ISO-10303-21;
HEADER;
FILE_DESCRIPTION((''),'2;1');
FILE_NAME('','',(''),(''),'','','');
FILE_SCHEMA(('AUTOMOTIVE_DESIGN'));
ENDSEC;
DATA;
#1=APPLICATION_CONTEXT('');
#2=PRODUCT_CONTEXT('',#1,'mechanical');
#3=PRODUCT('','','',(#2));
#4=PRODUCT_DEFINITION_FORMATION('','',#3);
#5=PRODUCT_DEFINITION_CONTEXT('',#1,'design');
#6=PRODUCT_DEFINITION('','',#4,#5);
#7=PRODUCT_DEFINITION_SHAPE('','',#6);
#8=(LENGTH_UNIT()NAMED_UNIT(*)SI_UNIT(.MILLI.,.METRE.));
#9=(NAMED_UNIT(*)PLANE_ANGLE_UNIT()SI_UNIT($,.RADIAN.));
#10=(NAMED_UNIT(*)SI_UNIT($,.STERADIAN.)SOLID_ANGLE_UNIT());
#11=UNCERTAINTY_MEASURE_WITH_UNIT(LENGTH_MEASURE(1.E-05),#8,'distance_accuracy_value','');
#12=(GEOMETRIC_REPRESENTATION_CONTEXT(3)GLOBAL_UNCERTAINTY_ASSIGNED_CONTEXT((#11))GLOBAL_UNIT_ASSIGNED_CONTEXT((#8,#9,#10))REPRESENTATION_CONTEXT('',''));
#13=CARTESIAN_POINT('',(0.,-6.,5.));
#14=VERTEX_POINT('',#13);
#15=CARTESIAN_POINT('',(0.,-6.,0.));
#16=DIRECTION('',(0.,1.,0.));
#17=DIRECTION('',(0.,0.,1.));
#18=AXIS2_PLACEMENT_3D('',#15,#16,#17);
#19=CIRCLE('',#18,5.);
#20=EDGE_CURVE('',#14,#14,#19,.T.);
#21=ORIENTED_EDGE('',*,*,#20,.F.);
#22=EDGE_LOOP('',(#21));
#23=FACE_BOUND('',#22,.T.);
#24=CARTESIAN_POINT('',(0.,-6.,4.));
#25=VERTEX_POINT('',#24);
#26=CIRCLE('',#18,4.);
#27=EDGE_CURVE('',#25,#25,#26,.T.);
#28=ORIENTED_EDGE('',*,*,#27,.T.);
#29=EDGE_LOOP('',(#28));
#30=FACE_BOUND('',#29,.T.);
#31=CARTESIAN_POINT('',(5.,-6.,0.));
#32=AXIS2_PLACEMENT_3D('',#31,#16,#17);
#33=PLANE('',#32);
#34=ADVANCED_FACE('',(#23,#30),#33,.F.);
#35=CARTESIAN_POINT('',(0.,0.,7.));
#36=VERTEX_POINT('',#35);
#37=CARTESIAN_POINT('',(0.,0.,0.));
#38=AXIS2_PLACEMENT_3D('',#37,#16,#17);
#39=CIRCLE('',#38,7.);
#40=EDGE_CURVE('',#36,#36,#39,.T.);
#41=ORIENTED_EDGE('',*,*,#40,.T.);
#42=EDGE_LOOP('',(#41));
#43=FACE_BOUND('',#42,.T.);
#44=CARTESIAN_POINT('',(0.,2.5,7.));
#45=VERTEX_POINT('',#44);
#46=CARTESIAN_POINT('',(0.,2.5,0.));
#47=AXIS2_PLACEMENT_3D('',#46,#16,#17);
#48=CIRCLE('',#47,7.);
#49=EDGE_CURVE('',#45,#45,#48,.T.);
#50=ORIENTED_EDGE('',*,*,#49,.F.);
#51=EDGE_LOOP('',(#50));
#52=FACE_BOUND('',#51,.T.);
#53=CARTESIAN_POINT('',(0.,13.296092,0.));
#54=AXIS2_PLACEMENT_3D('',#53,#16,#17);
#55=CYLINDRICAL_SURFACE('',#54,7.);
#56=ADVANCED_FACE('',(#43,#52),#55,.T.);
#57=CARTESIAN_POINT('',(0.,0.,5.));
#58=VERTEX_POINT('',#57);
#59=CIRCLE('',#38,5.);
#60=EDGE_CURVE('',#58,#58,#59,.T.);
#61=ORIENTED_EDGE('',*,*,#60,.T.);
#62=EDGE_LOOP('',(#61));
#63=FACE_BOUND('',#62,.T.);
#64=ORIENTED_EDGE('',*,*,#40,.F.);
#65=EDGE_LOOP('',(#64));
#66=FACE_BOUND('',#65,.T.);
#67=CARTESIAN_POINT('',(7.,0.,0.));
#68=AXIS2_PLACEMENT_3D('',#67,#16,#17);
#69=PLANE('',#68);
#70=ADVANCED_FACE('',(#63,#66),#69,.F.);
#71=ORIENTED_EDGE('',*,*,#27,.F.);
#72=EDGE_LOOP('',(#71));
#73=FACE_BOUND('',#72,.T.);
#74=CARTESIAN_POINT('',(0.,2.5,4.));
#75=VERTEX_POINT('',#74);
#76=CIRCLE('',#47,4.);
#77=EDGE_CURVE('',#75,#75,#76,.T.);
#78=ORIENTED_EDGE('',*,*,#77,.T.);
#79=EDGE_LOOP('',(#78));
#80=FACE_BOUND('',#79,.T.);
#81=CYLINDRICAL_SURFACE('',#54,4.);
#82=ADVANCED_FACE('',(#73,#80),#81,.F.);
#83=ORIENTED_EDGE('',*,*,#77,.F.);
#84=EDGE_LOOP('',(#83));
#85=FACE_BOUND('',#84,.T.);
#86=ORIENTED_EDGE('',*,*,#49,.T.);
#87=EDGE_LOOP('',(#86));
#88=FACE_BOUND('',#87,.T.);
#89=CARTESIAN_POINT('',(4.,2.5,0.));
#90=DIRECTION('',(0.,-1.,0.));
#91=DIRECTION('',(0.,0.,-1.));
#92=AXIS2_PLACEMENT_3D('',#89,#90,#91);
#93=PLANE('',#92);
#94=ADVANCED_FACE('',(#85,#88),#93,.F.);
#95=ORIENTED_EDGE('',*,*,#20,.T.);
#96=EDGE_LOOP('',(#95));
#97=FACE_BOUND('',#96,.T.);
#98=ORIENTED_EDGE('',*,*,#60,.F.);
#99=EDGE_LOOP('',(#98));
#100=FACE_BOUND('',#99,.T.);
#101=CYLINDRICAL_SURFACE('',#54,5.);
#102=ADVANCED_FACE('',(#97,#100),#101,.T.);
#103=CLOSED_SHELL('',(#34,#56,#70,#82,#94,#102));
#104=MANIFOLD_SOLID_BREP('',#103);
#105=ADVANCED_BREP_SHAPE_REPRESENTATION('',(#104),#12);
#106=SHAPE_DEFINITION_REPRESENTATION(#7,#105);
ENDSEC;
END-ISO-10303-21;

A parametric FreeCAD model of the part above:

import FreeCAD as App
import Part
import Sketcher

V = App.Vector


def add_polygon(sketch, points):
    """Adds a closed chain of lines whose ends are joined by coincident constraints."""
    first, n = sketch.GeometryCount, len(points)
    for a, b in zip(points, points[1:] + points[:1]):
        sketch.addGeometry(Part.LineSegment(App.Vector(*a, 0), App.Vector(*b, 0)), False)
    for i in range(n):
        sketch.addConstraint(Sketcher.Constraint("Coincident", first + i, 2, first + (i + 1) % n, 1))

doc = App.newDocument("Part")
params = doc.addObject("Spreadsheet::Sheet", "Params")
for row, (alias, value) in enumerate([
    ("sketch1_width", "3 mm"),
    ("sketch1_width2", "1 mm"),
    ("sketch1_height", "6 mm"),
    ("sketch1_height2", "8.5 mm"),
    ("revolution_angle", "360 deg"),
], start=1):
    params.set(f"A{row}", alias)
    params.set(f"B{row}", "=" + value)
    params.setAlias(f"B{row}", alias)

body = doc.addObject("PartDesign::Body", "Body")

# Sketch on XY plane
sketch1 = body.newObject("Sketcher::SketchObject", "Sketch")
sketch1.AttachmentSupport = (doc.getObject("XY_Plane"), [""])
sketch1.MapMode = "FlatFace"
add_polygon(sketch1, [(7, 2.5), (4, 2.5), (4, -6), (5, -6), (5, 0), (7, 0)])  # lines 0-5
sketch1.addConstraint(Sketcher.Constraint("Horizontal", 0))
sketch1.addConstraint(Sketcher.Constraint("Vertical", 1))
sketch1.addConstraint(Sketcher.Constraint("Horizontal", 2))
sketch1.addConstraint(Sketcher.Constraint("Vertical", 3))
sketch1.addConstraint(Sketcher.Constraint("Horizontal", 4))
sketch1.addConstraint(Sketcher.Constraint("Vertical", 5))
sketch1.addConstraint(Sketcher.Constraint("PointOnObject", 3, 2, -1))
sketch1.addConstraint(Sketcher.Constraint("DistanceX", 0, 2, 0, 1, 3.0))
sketch1.addConstraint(Sketcher.Constraint("DistanceX", 2, 1, 2, 2, 1.0))
sketch1.addConstraint(Sketcher.Constraint("DistanceY", 3, 1, 3, 2, 6.0))
sketch1.addConstraint(Sketcher.Constraint("DistanceY", 1, 2, 1, 1, 8.5))
sketch1.addConstraint(Sketcher.Constraint("DistanceX", -1, 1, 0, 2, 4.0))
sketch1.setExpression("Constraints[13]", "Params.sketch1_width")
sketch1.setExpression("Constraints[14]", "Params.sketch1_width2")
sketch1.setExpression("Constraints[15]", "Params.sketch1_height")
sketch1.setExpression("Constraints[16]", "Params.sketch1_height2")
revolution = body.newObject("PartDesign::Revolution", "Revolution")
revolution.Profile = sketch1
revolution.ReferenceAxis = (sketch1, ["V_Axis"])
revolution.setExpression("Angle", "Params.revolution_angle")

doc.recompute()
